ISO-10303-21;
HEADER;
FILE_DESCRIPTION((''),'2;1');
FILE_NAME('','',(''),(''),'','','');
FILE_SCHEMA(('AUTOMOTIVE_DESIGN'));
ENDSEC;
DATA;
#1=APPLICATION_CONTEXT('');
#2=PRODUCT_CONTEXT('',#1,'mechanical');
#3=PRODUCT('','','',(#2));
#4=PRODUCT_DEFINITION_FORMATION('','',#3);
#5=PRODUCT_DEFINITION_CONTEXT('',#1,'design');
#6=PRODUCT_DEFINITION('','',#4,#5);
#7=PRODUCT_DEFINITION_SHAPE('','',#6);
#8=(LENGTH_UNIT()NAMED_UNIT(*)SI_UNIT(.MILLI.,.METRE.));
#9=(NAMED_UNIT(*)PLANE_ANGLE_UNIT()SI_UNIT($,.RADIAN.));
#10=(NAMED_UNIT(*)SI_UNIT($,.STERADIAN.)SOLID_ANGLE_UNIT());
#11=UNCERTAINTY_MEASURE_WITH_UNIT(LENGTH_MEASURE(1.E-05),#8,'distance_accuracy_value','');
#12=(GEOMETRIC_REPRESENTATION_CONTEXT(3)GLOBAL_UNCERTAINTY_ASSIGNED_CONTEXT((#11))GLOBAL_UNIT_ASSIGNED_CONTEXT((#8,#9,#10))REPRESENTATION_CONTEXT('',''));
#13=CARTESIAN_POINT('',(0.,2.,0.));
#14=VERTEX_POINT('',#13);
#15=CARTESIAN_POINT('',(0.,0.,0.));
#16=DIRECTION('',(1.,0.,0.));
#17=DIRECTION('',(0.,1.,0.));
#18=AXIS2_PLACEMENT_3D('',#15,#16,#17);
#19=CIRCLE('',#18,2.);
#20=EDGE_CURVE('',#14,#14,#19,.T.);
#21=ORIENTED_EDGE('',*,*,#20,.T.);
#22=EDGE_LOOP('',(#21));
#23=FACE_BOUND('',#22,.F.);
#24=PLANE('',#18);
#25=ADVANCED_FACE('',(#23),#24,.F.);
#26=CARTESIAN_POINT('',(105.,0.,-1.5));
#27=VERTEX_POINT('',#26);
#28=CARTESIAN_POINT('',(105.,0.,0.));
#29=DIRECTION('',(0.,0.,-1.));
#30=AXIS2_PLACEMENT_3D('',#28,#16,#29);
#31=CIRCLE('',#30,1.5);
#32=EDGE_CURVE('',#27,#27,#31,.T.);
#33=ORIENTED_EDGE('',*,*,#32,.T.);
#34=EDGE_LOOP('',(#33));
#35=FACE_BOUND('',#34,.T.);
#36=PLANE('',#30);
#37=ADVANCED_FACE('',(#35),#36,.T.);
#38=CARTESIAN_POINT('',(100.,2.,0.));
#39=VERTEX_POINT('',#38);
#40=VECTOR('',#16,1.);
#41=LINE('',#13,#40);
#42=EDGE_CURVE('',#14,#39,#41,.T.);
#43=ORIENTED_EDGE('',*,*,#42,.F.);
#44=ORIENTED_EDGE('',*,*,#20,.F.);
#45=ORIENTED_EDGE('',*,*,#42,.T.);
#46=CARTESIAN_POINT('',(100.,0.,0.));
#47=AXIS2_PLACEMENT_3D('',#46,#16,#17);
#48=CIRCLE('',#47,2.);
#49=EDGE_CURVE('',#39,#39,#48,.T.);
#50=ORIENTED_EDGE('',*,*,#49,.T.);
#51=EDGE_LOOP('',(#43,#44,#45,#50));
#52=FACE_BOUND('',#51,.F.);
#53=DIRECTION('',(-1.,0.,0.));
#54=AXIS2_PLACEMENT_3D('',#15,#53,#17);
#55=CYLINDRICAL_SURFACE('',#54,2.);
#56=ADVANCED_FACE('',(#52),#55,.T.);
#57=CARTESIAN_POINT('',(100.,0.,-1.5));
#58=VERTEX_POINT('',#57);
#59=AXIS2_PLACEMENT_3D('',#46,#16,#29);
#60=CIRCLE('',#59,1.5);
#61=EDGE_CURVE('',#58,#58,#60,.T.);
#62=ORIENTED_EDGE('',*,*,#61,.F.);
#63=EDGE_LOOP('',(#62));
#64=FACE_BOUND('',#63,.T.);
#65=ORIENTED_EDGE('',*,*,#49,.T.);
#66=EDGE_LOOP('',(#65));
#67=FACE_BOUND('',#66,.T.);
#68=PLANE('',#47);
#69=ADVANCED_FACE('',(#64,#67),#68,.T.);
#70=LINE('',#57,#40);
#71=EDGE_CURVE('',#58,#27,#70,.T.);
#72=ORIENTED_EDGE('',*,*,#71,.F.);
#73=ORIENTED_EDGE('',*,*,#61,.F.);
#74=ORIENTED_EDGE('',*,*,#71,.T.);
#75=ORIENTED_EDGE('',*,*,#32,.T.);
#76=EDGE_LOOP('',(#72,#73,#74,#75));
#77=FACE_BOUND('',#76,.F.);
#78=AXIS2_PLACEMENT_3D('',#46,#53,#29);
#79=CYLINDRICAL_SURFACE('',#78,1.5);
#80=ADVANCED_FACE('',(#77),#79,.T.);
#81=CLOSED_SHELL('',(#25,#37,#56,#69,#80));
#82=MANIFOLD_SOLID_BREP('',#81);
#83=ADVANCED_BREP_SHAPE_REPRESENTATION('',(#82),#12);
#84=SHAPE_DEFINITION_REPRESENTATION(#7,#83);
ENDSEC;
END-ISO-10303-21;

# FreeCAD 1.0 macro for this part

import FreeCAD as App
import Part
import Sketcher
Q = App.Units.Quantity

doc = App.newDocument("Part")
body = doc.addObject("PartDesign::Body", "Body")

# Sketch on YZ plane
sketch1 = body.newObject("Sketcher::SketchObject", "Sketch")
sketch1.AttachmentSupport = (doc.getObject("YZ_Plane"), [""])
sketch1.MapMode = "FlatFace"
sketch1.addGeometry(Part.Circle(App.Vector(0, 0, 0), App.Vector(0, 0, 1), 2), False)
sketch1.addConstraint([
    Sketcher.Constraint("Coincident", 0, 3, -1, 1),
    Sketcher.Constraint("Diameter", 0, Q("4 mm")),
])
pad1 = body.newObject("PartDesign::Pad", "Pad")
pad1.Profile = sketch1
pad1.Length = 100

# Sketch on YZ plane
sketch2 = body.newObject("Sketcher::SketchObject", "Sketch001")
sketch2.AttachmentSupport = (doc.getObject("YZ_Plane"), [""])
sketch2.MapMode = "FlatFace"
sketch2.AttachmentOffset = App.Placement(App.Vector(0, 0, 100), App.Rotation())
sketch2.addGeometry(Part.Circle(App.Vector(0, 0, 0), App.Vector(0, 0, 1), 1.5), False)
sketch2.addConstraint([
    Sketcher.Constraint("Coincident", 0, 3, -1, 1),
    Sketcher.Constraint("Diameter", 0, Q("3 mm")),
])
pad2 = body.newObject("PartDesign::Pad", "Pad001")
pad2.Profile = sketch2
pad2.Length = 5

doc.recompute()
